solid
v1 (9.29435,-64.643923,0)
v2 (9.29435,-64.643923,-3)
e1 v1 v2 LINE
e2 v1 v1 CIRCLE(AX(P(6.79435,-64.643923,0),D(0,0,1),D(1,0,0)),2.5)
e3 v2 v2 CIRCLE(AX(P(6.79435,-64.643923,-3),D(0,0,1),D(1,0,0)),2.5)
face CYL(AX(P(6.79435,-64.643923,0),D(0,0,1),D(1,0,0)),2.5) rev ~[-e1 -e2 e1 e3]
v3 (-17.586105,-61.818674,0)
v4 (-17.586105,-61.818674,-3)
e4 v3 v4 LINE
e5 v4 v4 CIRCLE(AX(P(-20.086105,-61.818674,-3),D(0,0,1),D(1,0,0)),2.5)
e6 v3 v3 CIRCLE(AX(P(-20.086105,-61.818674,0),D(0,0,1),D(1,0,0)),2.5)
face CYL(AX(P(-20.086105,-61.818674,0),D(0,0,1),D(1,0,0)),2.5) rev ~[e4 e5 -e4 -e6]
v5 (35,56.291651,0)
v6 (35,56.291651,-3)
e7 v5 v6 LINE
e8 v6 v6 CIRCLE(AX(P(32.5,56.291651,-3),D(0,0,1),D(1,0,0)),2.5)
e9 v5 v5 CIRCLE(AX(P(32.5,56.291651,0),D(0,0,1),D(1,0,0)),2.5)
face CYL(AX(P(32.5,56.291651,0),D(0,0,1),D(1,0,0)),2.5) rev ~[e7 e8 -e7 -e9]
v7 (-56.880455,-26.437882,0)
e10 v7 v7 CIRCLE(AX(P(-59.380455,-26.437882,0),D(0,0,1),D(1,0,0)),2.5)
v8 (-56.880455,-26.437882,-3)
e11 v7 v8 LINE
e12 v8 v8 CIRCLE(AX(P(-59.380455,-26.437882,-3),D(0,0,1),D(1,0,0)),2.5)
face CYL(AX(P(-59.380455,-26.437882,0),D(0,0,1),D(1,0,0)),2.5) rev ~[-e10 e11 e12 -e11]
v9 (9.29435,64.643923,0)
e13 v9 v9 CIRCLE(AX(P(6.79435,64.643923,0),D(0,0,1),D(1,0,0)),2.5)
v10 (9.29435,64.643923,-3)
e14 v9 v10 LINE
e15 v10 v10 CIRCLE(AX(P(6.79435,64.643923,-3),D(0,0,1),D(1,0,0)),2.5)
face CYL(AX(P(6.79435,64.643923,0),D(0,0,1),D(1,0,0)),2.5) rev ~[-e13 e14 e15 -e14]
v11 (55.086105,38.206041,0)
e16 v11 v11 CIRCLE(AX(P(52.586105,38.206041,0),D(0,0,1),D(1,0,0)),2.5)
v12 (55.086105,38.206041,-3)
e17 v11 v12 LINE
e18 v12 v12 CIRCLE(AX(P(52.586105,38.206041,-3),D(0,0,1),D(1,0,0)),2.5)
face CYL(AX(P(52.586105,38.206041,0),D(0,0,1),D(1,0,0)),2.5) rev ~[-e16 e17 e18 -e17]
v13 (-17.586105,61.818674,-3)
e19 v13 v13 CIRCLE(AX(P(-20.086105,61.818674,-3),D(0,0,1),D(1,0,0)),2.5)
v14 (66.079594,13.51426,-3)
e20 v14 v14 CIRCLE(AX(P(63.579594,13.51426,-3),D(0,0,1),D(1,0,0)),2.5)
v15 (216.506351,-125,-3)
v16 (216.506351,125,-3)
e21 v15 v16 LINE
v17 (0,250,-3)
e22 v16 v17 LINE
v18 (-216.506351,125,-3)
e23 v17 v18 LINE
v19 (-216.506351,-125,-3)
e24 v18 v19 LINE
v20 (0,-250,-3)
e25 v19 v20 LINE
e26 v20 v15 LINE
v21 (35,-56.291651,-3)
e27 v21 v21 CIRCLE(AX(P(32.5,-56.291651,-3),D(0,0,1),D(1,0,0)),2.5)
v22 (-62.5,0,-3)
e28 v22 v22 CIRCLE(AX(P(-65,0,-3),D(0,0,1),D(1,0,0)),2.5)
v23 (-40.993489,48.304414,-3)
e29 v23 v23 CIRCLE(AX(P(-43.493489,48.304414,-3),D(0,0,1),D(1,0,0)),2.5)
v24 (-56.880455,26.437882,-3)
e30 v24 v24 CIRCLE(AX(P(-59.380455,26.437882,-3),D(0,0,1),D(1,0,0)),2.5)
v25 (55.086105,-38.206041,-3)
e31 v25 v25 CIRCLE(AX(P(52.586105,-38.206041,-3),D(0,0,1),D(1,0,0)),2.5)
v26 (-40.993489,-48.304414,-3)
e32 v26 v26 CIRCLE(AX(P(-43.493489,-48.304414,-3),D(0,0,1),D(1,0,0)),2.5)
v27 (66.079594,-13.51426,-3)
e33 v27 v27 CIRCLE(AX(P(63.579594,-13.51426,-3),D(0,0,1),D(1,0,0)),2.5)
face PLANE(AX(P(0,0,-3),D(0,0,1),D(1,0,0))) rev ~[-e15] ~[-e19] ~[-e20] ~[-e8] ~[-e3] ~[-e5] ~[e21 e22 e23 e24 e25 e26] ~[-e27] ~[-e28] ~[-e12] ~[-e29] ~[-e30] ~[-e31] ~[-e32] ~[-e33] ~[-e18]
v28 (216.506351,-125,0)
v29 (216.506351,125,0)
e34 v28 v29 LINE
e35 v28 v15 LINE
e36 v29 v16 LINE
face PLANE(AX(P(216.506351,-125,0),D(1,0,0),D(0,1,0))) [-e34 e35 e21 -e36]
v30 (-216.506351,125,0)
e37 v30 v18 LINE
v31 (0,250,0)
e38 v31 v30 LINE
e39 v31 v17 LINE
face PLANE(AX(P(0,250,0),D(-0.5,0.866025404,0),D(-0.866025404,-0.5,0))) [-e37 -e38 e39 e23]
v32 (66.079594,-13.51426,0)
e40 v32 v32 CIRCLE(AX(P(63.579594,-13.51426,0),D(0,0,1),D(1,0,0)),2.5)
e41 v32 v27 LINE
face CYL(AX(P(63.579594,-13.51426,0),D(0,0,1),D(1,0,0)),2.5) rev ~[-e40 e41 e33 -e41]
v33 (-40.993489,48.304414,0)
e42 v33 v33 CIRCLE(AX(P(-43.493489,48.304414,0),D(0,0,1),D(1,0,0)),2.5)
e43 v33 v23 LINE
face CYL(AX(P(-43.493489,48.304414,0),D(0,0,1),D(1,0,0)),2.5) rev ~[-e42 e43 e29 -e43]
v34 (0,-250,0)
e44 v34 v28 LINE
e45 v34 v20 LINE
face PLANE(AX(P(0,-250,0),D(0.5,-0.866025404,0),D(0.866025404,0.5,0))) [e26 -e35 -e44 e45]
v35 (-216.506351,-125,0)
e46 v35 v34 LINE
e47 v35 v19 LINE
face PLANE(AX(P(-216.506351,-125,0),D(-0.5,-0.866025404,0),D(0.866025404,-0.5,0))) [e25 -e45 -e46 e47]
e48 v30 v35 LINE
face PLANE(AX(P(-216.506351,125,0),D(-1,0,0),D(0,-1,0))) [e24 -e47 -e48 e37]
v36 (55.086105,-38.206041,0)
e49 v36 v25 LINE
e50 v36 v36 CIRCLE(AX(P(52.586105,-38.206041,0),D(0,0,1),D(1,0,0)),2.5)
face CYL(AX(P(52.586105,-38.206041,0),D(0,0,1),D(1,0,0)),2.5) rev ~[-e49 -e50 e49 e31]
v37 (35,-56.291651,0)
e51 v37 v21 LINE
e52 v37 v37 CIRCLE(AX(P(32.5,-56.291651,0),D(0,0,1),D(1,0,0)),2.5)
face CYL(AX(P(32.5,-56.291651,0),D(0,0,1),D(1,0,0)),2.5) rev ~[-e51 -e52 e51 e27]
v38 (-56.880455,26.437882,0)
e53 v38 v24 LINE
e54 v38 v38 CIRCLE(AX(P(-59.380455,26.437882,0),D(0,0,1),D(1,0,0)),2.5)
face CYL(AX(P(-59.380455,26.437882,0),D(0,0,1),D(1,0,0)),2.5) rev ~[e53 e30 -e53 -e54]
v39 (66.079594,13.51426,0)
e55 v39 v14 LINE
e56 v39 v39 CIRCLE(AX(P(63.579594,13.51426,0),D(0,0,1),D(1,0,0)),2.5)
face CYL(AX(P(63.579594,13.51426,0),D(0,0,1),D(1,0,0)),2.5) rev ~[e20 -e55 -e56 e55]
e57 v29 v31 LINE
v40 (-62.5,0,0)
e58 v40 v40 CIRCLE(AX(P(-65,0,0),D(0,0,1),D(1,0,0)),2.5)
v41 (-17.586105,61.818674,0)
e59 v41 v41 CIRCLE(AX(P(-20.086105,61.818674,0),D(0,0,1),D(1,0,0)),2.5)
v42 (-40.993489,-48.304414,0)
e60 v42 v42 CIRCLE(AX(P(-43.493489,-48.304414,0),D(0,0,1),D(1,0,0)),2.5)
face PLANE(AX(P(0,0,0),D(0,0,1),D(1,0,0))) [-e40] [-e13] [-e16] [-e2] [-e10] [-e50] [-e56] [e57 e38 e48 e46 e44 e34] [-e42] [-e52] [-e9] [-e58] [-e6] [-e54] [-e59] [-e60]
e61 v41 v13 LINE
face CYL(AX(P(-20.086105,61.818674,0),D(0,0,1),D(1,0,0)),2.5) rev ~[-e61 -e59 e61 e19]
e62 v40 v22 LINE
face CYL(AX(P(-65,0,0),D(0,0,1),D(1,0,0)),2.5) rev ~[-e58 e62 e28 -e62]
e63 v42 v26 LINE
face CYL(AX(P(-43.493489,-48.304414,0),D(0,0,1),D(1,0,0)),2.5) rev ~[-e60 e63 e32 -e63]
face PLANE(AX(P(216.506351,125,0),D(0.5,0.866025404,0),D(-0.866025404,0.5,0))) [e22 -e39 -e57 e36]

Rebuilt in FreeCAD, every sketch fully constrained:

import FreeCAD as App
import Part
import Sketcher
Q = App.Units.Quantity


def add_polygon(sketch, points):
    """Adds a closed chain of lines whose ends are joined by coincident constraints."""
    first, n = sketch.GeometryCount, len(points)
    for a, b in zip(points, points[1:] + points[:1]):
        sketch.addGeometry(Part.LineSegment(App.Vector(*a, 0), App.Vector(*b, 0)), False)
    for i in range(n):
        sketch.addConstraint(Sketcher.Constraint("Coincident", first + i, 2, first + (i + 1) % n, 1))

doc = App.newDocument("Part")
body = doc.addObject("PartDesign::Body", "Body")

# Sketch on XY plane
sketch1 = body.newObject("Sketcher::SketchObject", "Sketch")
sketch1.AttachmentSupport = (doc.getObject("XY_Plane"), [""])
sketch1.MapMode = "FlatFace"
add_polygon(sketch1, [(0, -250), (217, -125), (217, 125), (0, 250), (-217, 125), (-217, -125)])  # lines 0-5
sketch1.addConstraint(Sketcher.Constraint("Vertical", 1))
sketch1.addConstraint(Sketcher.Constraint("Vertical", 4))
sketch1.addConstraint(Sketcher.Constraint("Symmetric", 0, 2, 3, 2, -1, 1))
sketch1.addConstraint(Sketcher.Constraint("Symmetric", 2, 2, 5, 2, -1, 1))
sketch1.addConstraint(Sketcher.Constraint("PointOnObject", 2, 2, -2))
sketch1.addConstraint(Sketcher.Constraint("Parallel", 2, 5))
sketch1.addConstraint(Sketcher.Constraint("Horizontal", 1, 2, 3, 2))
sketch1.addConstraint(Sketcher.Constraint("DistanceY", 1, 1, 1, 2, Q("250 mm")))
sketch1.addConstraint(Sketcher.Constraint("Angle", 0, Q("30 deg")))
sketch1.addConstraint(Sketcher.Constraint("Distance", 0, Q("250 mm")))
pad1 = body.newObject("PartDesign::Pad", "Pad")
pad1.Profile = sketch1
pad1.Length = 3
pad1.Reversed = True

# Sketch on XY plane
sketch2 = body.newObject("Sketcher::SketchObject", "Sketch001")
sketch2.AttachmentSupport = (doc.getObject("XY_Plane"), [""])
sketch2.MapMode = "FlatFace"
sketch2.addGeometry(Part.Circle(App.Vector(-65, 0, 0), App.Vector(0, 0, 1), 2.5), False)
sketch2.addGeometry(Part.Circle(App.Vector(32.5, -56.3, 0), App.Vector(0, 0, 1), 2.5), False)
sketch2.addGeometry(Part.Circle(App.Vector(6.8, -64.6, 0), App.Vector(0, 0, 1), 2.5), False)
sketch2.addGeometry(Part.Circle(App.Vector(-20.1, -61.8, 0), App.Vector(0, 0, 1), 2.5), False)
sketch2.addGeometry(Part.Circle(App.Vector(-43.5, -48.3, 0), App.Vector(0, 0, 1), 2.5), False)
sketch2.addGeometry(Part.Circle(App.Vector(-59.4, -26.4, 0), App.Vector(0, 0, 1), 2.5), False)
sketch2.addGeometry(Part.Circle(App.Vector(-59.4, 26.4, 0), App.Vector(0, 0, 1), 2.5), False)
sketch2.addGeometry(Part.Circle(App.Vector(-43.5, 48.3, 0), App.Vector(0, 0, 1), 2.5), False)
sketch2.addGeometry(Part.Circle(App.Vector(-20.1, 61.8, 0), App.Vector(0, 0, 1), 2.5), False)
sketch2.addGeometry(Part.Circle(App.Vector(6.8, 64.6, 0), App.Vector(0, 0, 1), 2.5), False)
sketch2.addGeometry(Part.Circle(App.Vector(32.5, 56.3, 0), App.Vector(0, 0, 1), 2.5), False)
sketch2.addGeometry(Part.Circle(App.Vector(52.6, 38.2, 0), App.Vector(0, 0, 1), 2.5), False)
sketch2.addGeometry(Part.Circle(App.Vector(63.6, 13.5, 0), App.Vector(0, 0, 1), 2.5), False)
sketch2.addGeometry(Part.Circle(App.Vector(63.6, -13.5, 0), App.Vector(0, 0, 1), 2.5), False)
sketch2.addGeometry(Part.Circle(App.Vector(52.6, -38.2, 0), App.Vector(0, 0, 1), 2.5), False)
sketch2.addConstraint(Sketcher.Constraint("Equal", 0, 1))
sketch2.addConstraint(Sketcher.Constraint("Equal", 1, 2))
sketch2.addConstraint(Sketcher.Constraint("Equal", 2, 3))
sketch2.addConstraint(Sketcher.Constraint("Equal", 3, 4))
sketch2.addConstraint(Sketcher.Constraint("Equal", 4, 5))
sketch2.addConstraint(Sketcher.Constraint("Equal", 5, 6))
sketch2.addConstraint(Sketcher.Constraint("Equal", 6, 7))
sketch2.addConstraint(Sketcher.Constraint("Equal", 7, 8))
sketch2.addConstraint(Sketcher.Constraint("Equal", 8, 9))
sketch2.addConstraint(Sketcher.Constraint("Equal", 9, 10))
sketch2.addConstraint(Sketcher.Constraint("Equal", 10, 11))
sketch2.addConstraint(Sketcher.Constraint("Equal", 11, 12))
sketch2.addConstraint(Sketcher.Constraint("Equal", 12, 13))
sketch2.addConstraint(Sketcher.Constraint("Equal", 13, 14))
sketch2.addConstraint(Sketcher.Constraint("Symmetric", 5, 3, 6, 3, -1))
sketch2.addConstraint(Sketcher.Constraint("Symmetric", 4, 3, 7, 3, -1))
sketch2.addConstraint(Sketcher.Constraint("Symmetric", 3, 3, 8, 3, -1))
sketch2.addConstraint(Sketcher.Constraint("Symmetric", 2, 3, 9, 3, -1))
sketch2.addConstraint(Sketcher.Constraint("Symmetric", 1, 3, 10, 3, -1))
sketch2.addConstraint(Sketcher.Constraint("Symmetric", 12, 3, 13, 3, -1))
sketch2.addConstraint(Sketcher.Constraint("Symmetric", 11, 3, 14, 3, -1))
sketch2.addConstraint(Sketcher.Constraint("PointOnObject", 0, 3, -1))
sketch2.addConstraint(Sketcher.Constraint("Diameter", 0, Q("5 mm")))
sketch2.addConstraint(Sketcher.Constraint("DistanceX", 0, 3, -1, 1, Q("65 mm")))
sketch2.addConstraint(Sketcher.Constraint("DistanceX", -1, 1, 1, 3, Q("32.5 mm")))
sketch2.addConstraint(Sketcher.Constraint("DistanceX", 8, 3, 12, 3, Q("83.665699 mm")))
sketch2.addConstraint(Sketcher.Constraint("DistanceY", 13, 3, 11, 3, Q("51.720301 mm")))
sketch2.addConstraint(Sketcher.Constraint("DistanceY", 1, 3, -1, 1, Q("56.291651 mm")))
sketch2.addConstraint(Sketcher.Constraint("DistanceX", -1, 1, 2, 3, Q("6.79435 mm")))
sketch2.addConstraint(Sketcher.Constraint("DistanceX", 4, 3, -1, 1, Q("43.493489 mm")))
sketch2.addConstraint(Sketcher.Constraint("DistanceY", 5, 3, -1, 1, Q("26.437882 mm")))
sketch2.addConstraint(Sketcher.Constraint("DistanceY", -1, 1, 11, 3, Q("38.206041 mm")))
sketch2.addConstraint(Sketcher.Constraint("DistanceY", 2, 3, 1, 3, Q("8.352272 mm")))
sketch2.addConstraint(Sketcher.Constraint("DistanceY", 2, 3, 3, 3, Q("2.82525 mm")))
sketch2.addConstraint(Sketcher.Constraint("DistanceY", 3, 3, 4, 3, Q("13.51426 mm")))
sketch2.addConstraint(Sketcher.Constraint("DistanceX", 5, 3, 3, 3, Q("39.29435 mm")))
sketch2.addConstraint(Sketcher.Constraint("DistanceX", 8, 3, 11, 3, Q("72.672209 mm")))
sketch2.addConstraint(Sketcher.Constraint("DistanceX", 3, 3, -1, 1, Q("20.086105 mm")))
pocket1 = body.newObject("PartDesign::Pocket", "Pocket")
pocket1.Profile = sketch2
pocket1.Type = "ThroughAll"

doc.recompute()
